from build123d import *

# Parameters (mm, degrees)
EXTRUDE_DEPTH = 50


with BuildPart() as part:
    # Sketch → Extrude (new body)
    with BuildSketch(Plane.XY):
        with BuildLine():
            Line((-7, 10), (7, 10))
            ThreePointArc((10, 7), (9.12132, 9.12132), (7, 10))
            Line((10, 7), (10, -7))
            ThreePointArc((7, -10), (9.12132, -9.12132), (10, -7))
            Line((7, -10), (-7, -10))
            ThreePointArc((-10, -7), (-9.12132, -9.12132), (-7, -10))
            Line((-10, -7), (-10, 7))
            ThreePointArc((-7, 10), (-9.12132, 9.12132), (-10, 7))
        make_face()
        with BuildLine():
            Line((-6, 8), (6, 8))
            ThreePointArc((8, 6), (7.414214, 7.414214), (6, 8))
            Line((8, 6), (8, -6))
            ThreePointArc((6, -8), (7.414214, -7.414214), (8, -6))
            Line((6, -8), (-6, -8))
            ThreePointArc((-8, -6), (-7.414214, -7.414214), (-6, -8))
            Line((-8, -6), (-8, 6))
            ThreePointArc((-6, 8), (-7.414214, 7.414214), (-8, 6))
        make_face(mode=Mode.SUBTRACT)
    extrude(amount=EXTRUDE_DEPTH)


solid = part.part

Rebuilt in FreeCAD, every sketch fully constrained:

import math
import FreeCAD as App
import Part
import Sketcher
from FreeCAD import Vector
Q = App.Units.Quantity

doc = App.newDocument("Part")
body = doc.addObject("PartDesign::Body", "Body")

# Sketch on XY plane
sketch1 = doc.addObject("Sketcher::SketchObject", "Sketch")
body.addObject(sketch1)
sketch1.AttachmentSupport = (doc.XY_Plane, [""])
sketch1.MapMode = "FlatFace"
sketch1.addGeometry(Part.LineSegment(Vector(7, 10, 0), Vector(-7, 10, 0)), False)
sketch1.addGeometry(Part.ArcOfCircle(Part.Circle(Vector(-7, 7, 0), Vector(0, 0, 1), 3), math.radians(90), math.radians(180)), False)
sketch1.addGeometry(Part.LineSegment(Vector(-10, 7, 0), Vector(-10, -7, 0)), False)
sketch1.addGeometry(Part.ArcOfCircle(Part.Circle(Vector(-7, -7, 0), Vector(0, 0, 1), 3), math.radians(-180), math.radians(-90)), False)
sketch1.addGeometry(Part.LineSegment(Vector(-7, -10, 0), Vector(7, -10, 0)), False)
sketch1.addGeometry(Part.ArcOfCircle(Part.Circle(Vector(7, -7, 0), Vector(0, 0, 1), 3), math.radians(-90), math.radians(0)), False)
sketch1.addGeometry(Part.LineSegment(Vector(10, -7, 0), Vector(10, 7, 0)), False)
sketch1.addGeometry(Part.ArcOfCircle(Part.Circle(Vector(7, 7, 0), Vector(0, 0, 1), 3), math.radians(0), math.radians(90)), False)
sketch1.addGeometry(Part.LineSegment(Vector(-6, 8, 0), Vector(6, 8, 0)), False)
sketch1.addGeometry(Part.ArcOfCircle(Part.Circle(Vector(6, 6, 0), Vector(0, 0, 1), 2), math.radians(0), math.radians(90)), False)
sketch1.addGeometry(Part.LineSegment(Vector(8, 6, 0), Vector(8, -6, 0)), False)
sketch1.addGeometry(Part.ArcOfCircle(Part.Circle(Vector(6, -6, 0), Vector(0, 0, 1), 2), math.radians(-90), math.radians(0)), False)
sketch1.addGeometry(Part.LineSegment(Vector(6, -8, 0), Vector(-6, -8, 0)), False)
sketch1.addGeometry(Part.ArcOfCircle(Part.Circle(Vector(-6, -6, 0), Vector(0, 0, 1), 2), math.radians(180), math.radians(270)), False)
sketch1.addGeometry(Part.LineSegment(Vector(-8, -6, 0), Vector(-8, 6, 0)), False)
sketch1.addGeometry(Part.ArcOfCircle(Part.Circle(Vector(-6, 6, 0), Vector(0, 0, 1), 2), math.radians(90), math.radians(180)), False)
sketch1.addConstraint(Sketcher.Constraint("Tangent", 0, 2, 1, 1))
sketch1.addConstraint(Sketcher.Constraint("Tangent", 1, 2, 2, 1))
sketch1.addConstraint(Sketcher.Constraint("Tangent", 2, 2, 3, 1))
sketch1.addConstraint(Sketcher.Constraint("Tangent", 3, 2, 4, 1))
sketch1.addConstraint(Sketcher.Constraint("Tangent", 4, 2, 5, 1))
sketch1.addConstraint(Sketcher.Constraint("Tangent", 5, 2, 6, 1))
sketch1.addConstraint(Sketcher.Constraint("Tangent", 6, 2, 7, 1))
sketch1.addConstraint(Sketcher.Constraint("Tangent", 7, 2, 0, 1))
sketch1.addConstraint(Sketcher.Constraint("Tangent", 8, 2, 9, 2))
sketch1.addConstraint(Sketcher.Constraint("Tangent", 9, 1, 10, 1))
sketch1.addConstraint(Sketcher.Constraint("Tangent", 10, 2, 11, 2))
sketch1.addConstraint(Sketcher.Constraint("Tangent", 11, 1, 12, 1))
sketch1.addConstraint(Sketcher.Constraint("Tangent", 12, 2, 13, 2))
sketch1.addConstraint(Sketcher.Constraint("Tangent", 13, 1, 14, 1))
sketch1.addConstraint(Sketcher.Constraint("Tangent", 14, 2, 15, 2))
sketch1.addConstraint(Sketcher.Constraint("Tangent", 15, 1, 8, 1))
sketch1.addConstraint(Sketcher.Constraint("Horizontal", 0))
sketch1.addConstraint(Sketcher.Constraint("Vertical", 2))
sketch1.addConstraint(Sketcher.Constraint("Horizontal", 4))
sketch1.addConstraint(Sketcher.Constraint("Vertical", 6))
sketch1.addConstraint(Sketcher.Constraint("Horizontal", 8))
sketch1.addConstraint(Sketcher.Constraint("Vertical", 10))
sketch1.addConstraint(Sketcher.Constraint("Horizontal", 12))
sketch1.addConstraint(Sketcher.Constraint("Vertical", 14))
sketch1.addConstraint(Sketcher.Constraint("Equal", 1, 3))
sketch1.addConstraint(Sketcher.Constraint("Equal", 3, 5))
sketch1.addConstraint(Sketcher.Constraint("Equal", 5, 7))
sketch1.addConstraint(Sketcher.Constraint("Equal", 9, 11))
sketch1.addConstraint(Sketcher.Constraint("Equal", 11, 13))
sketch1.addConstraint(Sketcher.Constraint("Equal", 13, 15))
sketch1.addConstraint(Sketcher.Constraint("Symmetric", 1, 3, 5, 3, -1, 1))
sketch1.addConstraint(Sketcher.Constraint("Symmetric", 9, 3, 13, 3, -1, 1))
sketch1.addConstraint(Sketcher.Constraint("Equal", 4, 2))
sketch1.addConstraint(Sketcher.Constraint("Equal", 12, 10))
sketch1.addConstraint(Sketcher.Constraint("Radius", 1, Q("3.000001 mm")))
sketch1.addConstraint(Sketcher.Constraint("Radius", 9, Q("1.999999 mm")))
sketch1.addConstraint(Sketcher.Constraint("DistanceX", 0, 2, 0, 1, Q("14 mm")))
sketch1.addConstraint(Sketcher.Constraint("DistanceX", 8, 1, 8, 2, Q("12 mm")))
pad1 = doc.addObject("PartDesign::Pad", "Pad")
body.addObject(pad1)
pad1.Profile = sketch1
pad1.Length = 50

doc.recompute()
